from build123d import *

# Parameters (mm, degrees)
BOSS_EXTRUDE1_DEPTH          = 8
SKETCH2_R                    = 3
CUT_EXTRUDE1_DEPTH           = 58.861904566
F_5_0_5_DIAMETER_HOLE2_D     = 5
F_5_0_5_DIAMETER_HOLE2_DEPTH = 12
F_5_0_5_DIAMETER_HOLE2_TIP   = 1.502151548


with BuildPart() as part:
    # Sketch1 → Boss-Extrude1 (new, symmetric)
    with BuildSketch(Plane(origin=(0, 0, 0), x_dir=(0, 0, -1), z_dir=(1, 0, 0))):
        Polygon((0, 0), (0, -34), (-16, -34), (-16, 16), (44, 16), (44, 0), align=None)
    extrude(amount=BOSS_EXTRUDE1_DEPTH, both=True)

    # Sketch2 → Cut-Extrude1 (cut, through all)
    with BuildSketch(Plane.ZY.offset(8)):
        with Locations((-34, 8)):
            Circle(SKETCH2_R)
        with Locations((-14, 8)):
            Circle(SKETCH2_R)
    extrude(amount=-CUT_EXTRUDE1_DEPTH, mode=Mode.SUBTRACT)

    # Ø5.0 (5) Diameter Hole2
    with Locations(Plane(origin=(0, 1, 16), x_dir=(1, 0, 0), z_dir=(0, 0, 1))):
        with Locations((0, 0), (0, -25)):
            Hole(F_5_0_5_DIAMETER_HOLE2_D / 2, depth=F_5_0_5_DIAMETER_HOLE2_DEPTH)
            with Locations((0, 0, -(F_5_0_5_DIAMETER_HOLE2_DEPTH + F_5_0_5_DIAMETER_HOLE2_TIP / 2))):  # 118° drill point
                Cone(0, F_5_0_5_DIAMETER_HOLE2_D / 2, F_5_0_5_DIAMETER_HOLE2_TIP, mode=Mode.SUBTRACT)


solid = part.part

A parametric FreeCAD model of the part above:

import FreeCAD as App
import Part
import Sketcher
from FreeCAD import Vector
Q = App.Units.Quantity

doc = App.newDocument("Part")
body = doc.addObject("PartDesign::Body", "Body")

# Sketch on YZ plane
sketch1 = doc.addObject("Sketcher::SketchObject", "Sketch")
body.addObject(sketch1)
sketch1.AttachmentSupport = (doc.YZ_Plane, [""])
sketch1.MapMode = "FlatFace"
sketch1.addGeometry(Part.LineSegment(Vector(-34, 0, 0), Vector(0, 0, 0)), False)
sketch1.addGeometry(Part.LineSegment(Vector(0, 0, 0), Vector(0, -44, 0)), False)
sketch1.addGeometry(Part.LineSegment(Vector(0, -44, 0), Vector(16, -44, 0)), False)
sketch1.addGeometry(Part.LineSegment(Vector(16, -44, 0), Vector(16, 16, 0)), False)
sketch1.addGeometry(Part.LineSegment(Vector(16, 16, 0), Vector(-34, 16, 0)), False)
sketch1.addGeometry(Part.LineSegment(Vector(-34, 16, 0), Vector(-34, 0, 0)), False)
sketch1.addConstraint(Sketcher.Constraint("Coincident", 0, 2, 1, 1))
sketch1.addConstraint(Sketcher.Constraint("Coincident", 1, 2, 2, 1))
sketch1.addConstraint(Sketcher.Constraint("Coincident", 2, 2, 3, 1))
sketch1.addConstraint(Sketcher.Constraint("Coincident", 3, 2, 4, 1))
sketch1.addConstraint(Sketcher.Constraint("Coincident", 4, 2, 5, 1))
sketch1.addConstraint(Sketcher.Constraint("Coincident", 5, 2, 0, 1))
sketch1.addConstraint(Sketcher.Constraint("Horizontal", 0))
sketch1.addConstraint(Sketcher.Constraint("Vertical", 1))
sketch1.addConstraint(Sketcher.Constraint("Horizontal", 2))
sketch1.addConstraint(Sketcher.Constraint("Vertical", 3))
sketch1.addConstraint(Sketcher.Constraint("Horizontal", 4))
sketch1.addConstraint(Sketcher.Constraint("Vertical", 5))
sketch1.addConstraint(Sketcher.Constraint("Coincident", 0, 2, -1, 1))
sketch1.addConstraint(Sketcher.Constraint("Equal", 2, 5))
sketch1.addConstraint(Sketcher.Constraint("DistanceX", 0, 1, 0, 2, Q("34 mm")))
sketch1.addConstraint(Sketcher.Constraint("DistanceX", 2, 1, 2, 2, Q("16 mm")))
sketch1.addConstraint(Sketcher.Constraint("DistanceY", 1, 2, 1, 1, Q("44 mm")))
pad1 = doc.addObject("PartDesign::Pad", "Pad")
body.addObject(pad1)
pad1.Profile = sketch1
pad1.Length = 16
pad1.Midplane = True

# Sketch on YZ plane
sketch2 = doc.addObject("Sketcher::SketchObject", "Sketch001")
body.addObject(sketch2)
sketch2.AttachmentSupport = (doc.YZ_Plane, [""])
sketch2.MapMode = "FlatFace"
sketch2.AttachmentOffset = App.Placement(Vector(0, 0, -8), App.Rotation())
sketch2.addGeometry(Part.Circle(Vector(8, -34, 0), Vector(0, 0, 1), 3), False)
sketch2.addGeometry(Part.Circle(Vector(8, -14, 0), Vector(0, 0, 1), 3), False)
sketch2.addConstraint(Sketcher.Constraint("Equal", 0, 1))
sketch2.addConstraint(Sketcher.Constraint("Vertical", 0, 3, 1, 3))
sketch2.addConstraint(Sketcher.Constraint("Diameter", 0, Q("6 mm")))
sketch2.addConstraint(Sketcher.Constraint("DistanceX", -1, 1, 0, 3, Q("8 mm")))
sketch2.addConstraint(Sketcher.Constraint("DistanceY", 0, 3, -1, 1, Q("34 mm")))
sketch2.addConstraint(Sketcher.Constraint("DistanceY", 1, 3, -1, 1, Q("14 mm")))
pocket1 = doc.addObject("PartDesign::Pocket", "Pocket")
body.addObject(pocket1)
pocket1.Profile = sketch2
pocket1.Type = "ThroughAll"
pocket1.Reversed = True

# Sketch on XY plane
sketch3 = doc.addObject("Sketcher::SketchObject", "Sketch002")
body.addObject(sketch3)
sketch3.AttachmentSupport = (doc.XY_Plane, [""])
sketch3.MapMode = "FlatFace"
sketch3.AttachmentOffset = App.Placement(Vector(0, 0, 16), App.Rotation())
sketch3.addGeometry(Part.Circle(Vector(0, 1, 0), Vector(0, 0, 1), 2.5), False)
sketch3.addGeometry(Part.Circle(Vector(0, -24, 0), Vector(0, 0, 1), 2.5), False)
sketch3.addConstraint(Sketcher.Constraint("Equal", 0, 1))
sketch3.addConstraint(Sketcher.Constraint("PointOnObject", 0, 3, -2))
sketch3.addConstraint(Sketcher.Constraint("PointOnObject", 1, 3, -2))
sketch3.addConstraint(Sketcher.Constraint("Diameter", 0, Q("5 mm")))
sketch3.addConstraint(Sketcher.Constraint("DistanceY", -1, 1, 0, 3, Q("1 mm")))
sketch3.addConstraint(Sketcher.Constraint("DistanceY", 1, 3, -1, 1, Q("24 mm")))
doc.recompute()
hole = doc.addObject("PartDesign::Hole", "Hole")
body.addObject(hole)
hole.Profile = sketch3
hole.ThreadType = "None"
hole.Diameter = 5
hole.DepthType = "Dimension"
hole.Depth = 12
hole.DrillPoint = "Angled"
hole.DrillPointAngle = 118

doc.recompute()
